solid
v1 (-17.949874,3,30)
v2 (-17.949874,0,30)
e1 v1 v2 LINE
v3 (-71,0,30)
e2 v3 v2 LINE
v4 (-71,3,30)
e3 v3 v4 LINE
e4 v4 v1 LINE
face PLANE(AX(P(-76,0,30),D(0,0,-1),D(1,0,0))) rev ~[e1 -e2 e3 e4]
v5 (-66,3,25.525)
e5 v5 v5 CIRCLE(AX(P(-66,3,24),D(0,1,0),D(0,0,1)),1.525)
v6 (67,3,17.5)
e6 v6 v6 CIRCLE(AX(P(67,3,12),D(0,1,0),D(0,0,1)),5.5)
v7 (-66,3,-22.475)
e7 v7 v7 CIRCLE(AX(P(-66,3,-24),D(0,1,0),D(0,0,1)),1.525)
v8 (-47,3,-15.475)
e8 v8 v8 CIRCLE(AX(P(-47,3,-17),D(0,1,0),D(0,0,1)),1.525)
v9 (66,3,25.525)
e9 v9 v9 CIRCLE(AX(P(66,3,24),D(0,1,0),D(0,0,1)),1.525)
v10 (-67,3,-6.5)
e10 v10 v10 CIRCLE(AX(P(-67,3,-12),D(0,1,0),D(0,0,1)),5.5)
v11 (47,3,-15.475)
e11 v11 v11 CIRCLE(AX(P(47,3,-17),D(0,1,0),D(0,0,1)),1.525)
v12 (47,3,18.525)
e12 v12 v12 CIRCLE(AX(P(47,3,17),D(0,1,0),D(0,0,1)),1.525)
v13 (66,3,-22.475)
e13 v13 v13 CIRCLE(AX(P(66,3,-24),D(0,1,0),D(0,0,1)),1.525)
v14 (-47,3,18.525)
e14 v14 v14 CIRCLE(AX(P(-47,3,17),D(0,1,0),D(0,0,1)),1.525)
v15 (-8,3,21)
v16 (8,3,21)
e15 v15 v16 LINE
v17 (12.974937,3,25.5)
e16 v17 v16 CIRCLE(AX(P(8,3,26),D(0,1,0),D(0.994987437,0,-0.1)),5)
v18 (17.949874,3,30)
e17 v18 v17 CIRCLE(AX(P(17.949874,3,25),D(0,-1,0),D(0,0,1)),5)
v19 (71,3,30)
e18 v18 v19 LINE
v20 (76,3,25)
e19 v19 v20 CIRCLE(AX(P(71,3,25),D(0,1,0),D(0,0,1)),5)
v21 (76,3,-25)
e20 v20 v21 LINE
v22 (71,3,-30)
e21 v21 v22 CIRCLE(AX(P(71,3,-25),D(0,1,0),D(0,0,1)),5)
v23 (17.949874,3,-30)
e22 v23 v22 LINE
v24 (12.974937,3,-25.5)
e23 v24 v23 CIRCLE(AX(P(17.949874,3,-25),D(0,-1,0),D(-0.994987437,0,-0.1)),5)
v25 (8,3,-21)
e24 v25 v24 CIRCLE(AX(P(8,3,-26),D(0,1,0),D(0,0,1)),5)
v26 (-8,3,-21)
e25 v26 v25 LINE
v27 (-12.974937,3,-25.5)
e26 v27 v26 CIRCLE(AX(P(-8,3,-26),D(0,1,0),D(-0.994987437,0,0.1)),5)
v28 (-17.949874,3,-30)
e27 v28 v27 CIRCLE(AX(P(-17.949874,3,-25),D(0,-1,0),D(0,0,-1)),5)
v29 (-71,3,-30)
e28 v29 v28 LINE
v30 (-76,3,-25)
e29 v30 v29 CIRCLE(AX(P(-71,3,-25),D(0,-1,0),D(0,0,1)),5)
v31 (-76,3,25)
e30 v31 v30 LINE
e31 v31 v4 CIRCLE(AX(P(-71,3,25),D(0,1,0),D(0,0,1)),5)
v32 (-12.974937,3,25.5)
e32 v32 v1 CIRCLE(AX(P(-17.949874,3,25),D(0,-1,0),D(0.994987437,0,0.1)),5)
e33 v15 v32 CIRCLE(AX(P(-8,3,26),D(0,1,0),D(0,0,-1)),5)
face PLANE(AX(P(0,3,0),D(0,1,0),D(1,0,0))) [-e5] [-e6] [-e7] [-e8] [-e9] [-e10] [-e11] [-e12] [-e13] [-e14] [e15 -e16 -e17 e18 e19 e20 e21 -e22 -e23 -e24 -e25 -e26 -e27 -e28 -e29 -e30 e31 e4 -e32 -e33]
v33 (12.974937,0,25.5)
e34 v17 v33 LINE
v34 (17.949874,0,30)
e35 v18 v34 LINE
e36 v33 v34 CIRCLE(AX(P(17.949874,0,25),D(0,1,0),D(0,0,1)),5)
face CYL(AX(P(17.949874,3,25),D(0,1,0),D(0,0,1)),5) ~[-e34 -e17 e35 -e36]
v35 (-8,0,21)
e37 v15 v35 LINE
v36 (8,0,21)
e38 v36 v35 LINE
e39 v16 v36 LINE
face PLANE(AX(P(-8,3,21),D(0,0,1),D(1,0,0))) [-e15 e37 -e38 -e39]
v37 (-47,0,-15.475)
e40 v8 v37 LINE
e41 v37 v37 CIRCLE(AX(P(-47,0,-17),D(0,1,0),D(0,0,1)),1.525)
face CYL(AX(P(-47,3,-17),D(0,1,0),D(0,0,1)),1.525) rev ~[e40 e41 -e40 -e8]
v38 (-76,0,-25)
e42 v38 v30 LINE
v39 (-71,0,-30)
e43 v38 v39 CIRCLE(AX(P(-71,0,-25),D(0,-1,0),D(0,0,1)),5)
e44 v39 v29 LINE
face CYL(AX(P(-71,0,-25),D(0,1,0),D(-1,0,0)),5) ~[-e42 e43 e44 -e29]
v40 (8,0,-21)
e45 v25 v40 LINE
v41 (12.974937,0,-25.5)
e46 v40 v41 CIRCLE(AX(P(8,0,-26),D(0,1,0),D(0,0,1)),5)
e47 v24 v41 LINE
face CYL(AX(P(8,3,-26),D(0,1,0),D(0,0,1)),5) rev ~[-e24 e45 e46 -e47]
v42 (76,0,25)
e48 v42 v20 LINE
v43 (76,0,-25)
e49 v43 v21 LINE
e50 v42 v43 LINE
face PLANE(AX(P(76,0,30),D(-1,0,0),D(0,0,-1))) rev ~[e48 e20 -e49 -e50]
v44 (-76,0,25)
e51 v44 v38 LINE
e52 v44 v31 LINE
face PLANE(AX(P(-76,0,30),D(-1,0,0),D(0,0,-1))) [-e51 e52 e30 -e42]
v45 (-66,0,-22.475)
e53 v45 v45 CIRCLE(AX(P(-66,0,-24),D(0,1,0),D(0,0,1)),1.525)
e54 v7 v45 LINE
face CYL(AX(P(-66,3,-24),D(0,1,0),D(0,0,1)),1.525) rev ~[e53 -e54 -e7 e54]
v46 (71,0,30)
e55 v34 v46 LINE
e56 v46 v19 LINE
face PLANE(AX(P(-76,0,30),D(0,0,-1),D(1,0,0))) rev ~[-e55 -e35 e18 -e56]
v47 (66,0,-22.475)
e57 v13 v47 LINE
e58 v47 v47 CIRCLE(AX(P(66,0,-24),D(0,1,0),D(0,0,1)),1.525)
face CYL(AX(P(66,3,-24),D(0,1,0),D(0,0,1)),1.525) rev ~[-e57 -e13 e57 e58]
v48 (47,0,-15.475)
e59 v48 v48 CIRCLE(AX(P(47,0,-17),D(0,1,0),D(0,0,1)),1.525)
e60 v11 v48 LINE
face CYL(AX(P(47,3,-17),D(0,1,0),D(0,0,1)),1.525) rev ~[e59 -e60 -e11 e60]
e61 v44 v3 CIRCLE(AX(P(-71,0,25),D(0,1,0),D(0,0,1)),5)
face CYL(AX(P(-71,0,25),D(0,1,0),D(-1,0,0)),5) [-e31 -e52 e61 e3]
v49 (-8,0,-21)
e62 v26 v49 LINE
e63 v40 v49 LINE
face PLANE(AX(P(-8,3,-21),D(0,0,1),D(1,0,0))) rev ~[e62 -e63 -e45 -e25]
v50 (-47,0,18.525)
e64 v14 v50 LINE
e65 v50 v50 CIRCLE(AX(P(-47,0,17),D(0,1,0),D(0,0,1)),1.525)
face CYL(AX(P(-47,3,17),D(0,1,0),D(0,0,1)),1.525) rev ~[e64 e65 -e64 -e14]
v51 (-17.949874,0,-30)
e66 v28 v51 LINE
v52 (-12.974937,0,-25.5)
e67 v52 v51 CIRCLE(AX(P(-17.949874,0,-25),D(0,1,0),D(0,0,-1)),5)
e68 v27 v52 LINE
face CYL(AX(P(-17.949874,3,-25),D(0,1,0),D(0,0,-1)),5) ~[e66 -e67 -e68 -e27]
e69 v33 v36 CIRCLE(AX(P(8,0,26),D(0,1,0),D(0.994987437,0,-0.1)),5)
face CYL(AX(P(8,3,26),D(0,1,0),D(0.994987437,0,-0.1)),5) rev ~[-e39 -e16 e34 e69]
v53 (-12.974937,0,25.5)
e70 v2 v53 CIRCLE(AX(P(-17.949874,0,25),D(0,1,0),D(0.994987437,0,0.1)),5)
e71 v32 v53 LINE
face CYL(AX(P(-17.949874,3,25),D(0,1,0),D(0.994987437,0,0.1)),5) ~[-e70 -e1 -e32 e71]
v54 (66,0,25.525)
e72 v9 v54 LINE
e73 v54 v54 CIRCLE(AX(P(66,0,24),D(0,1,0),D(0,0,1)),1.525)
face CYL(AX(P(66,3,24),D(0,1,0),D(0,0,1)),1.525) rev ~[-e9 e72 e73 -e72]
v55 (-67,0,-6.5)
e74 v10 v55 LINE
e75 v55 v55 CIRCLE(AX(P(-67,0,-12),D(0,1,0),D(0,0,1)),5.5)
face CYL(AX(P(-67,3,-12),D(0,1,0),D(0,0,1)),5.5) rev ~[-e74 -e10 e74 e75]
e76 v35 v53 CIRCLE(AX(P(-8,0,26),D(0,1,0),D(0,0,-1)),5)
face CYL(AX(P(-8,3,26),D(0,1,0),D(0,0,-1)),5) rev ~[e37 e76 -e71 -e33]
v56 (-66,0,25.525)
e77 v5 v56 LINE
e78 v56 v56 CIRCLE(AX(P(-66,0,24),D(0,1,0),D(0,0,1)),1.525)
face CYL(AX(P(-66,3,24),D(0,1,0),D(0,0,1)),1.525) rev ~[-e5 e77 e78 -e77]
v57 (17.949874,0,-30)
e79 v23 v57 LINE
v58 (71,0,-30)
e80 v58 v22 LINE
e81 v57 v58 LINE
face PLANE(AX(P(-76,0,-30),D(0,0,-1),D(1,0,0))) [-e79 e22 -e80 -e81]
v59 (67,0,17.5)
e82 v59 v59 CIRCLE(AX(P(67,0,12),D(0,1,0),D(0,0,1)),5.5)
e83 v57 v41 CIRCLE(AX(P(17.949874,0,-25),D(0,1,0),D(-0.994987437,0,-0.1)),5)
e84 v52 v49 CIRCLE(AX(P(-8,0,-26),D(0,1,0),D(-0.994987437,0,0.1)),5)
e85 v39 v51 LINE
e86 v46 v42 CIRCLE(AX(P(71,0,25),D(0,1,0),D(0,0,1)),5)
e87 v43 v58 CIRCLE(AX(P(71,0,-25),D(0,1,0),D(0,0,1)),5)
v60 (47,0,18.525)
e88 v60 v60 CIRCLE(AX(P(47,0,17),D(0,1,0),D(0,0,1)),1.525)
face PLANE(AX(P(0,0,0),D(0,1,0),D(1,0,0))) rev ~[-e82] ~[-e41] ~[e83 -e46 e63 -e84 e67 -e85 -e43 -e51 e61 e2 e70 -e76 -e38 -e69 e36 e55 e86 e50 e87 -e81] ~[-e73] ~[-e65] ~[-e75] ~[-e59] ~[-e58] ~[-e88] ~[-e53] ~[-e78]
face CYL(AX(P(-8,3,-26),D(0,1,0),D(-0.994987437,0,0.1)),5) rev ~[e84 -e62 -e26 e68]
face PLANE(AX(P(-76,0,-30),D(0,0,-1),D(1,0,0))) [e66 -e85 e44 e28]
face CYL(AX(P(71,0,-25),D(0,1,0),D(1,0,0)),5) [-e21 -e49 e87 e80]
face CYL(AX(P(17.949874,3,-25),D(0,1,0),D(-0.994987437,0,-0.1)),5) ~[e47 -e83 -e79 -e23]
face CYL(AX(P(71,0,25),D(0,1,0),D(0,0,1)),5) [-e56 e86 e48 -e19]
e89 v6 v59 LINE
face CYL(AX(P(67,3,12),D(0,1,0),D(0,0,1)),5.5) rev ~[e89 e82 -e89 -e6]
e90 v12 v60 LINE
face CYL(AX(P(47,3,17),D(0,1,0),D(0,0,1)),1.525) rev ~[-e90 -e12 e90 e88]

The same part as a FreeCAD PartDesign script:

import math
import FreeCAD as App
import Part
import Sketcher

V = App.Vector


def edges_at(feature, points):
    """Names of the edges that pass closest to the given points."""
    edges = feature.Shape.Edges
    near = lambda p: min(range(len(edges)), key=lambda i: edges[i].distToShape(Part.Vertex(*p))[0])
    return sorted({f"Edge{near(p) + 1}" for p in points})

doc = App.newDocument("Part")
params = doc.addObject("Spreadsheet::Sheet", "Params")
for row, (alias, value) in enumerate([
    ("sketch1_width", "152 mm"),
    ("sketch1_height", "60 mm"),
    ("pad1_length", "3 mm"),
    ("fillet_radius", "5 mm"),
    ("sketch2_diameter", "3.05 mm"),
    ("sketch3_diameter", "3.05 mm"),
    ("sketch4_diameter", "3.05 mm"),
    ("sketch5_diameter", "3.05 mm"),
    ("sketch6_radius", "5 mm"),
    ("sketch6_height", "9 mm"),
    ("sketch7_width", "16 mm"),
    ("sketch7_height", "9 mm"),
    ("sketch8_radius", "5 mm"),
    ("sketch8_height", "9 mm"),
    ("sketch9_radius", "5 mm"),
    ("sketch9_height", "9 mm"),
    ("sketch10_width", "16 mm"),
    ("sketch10_height", "9 mm"),
    ("sketch11_radius", "5 mm"),
    ("sketch11_height", "9 mm"),
    ("sketch12_diameter", "3.05 mm"),
    ("sketch13_diameter", "3.05 mm"),
    ("sketch14_diameter", "3.05 mm"),
    ("sketch15_diameter", "3.05 mm"),
    ("sketch16_diameter", "11 mm"),
    ("sketch17_diameter", "11 mm"),
], start=1):
    params.set(f"A{row}", alias)
    params.set(f"B{row}", "=" + value)
    params.setAlias(f"B{row}", alias)

body = doc.addObject("PartDesign::Body", "Body")

sketch1 = doc.addObject("Sketcher::SketchObject", "Sketch")
body.addObject(sketch1)
sketch1.AttachmentSupport = (doc.XZ_Plane, [""])
sketch1.MapMode = "FlatFace"
sketch1.addGeometry([
    Part.LineSegment(V(-76, -30, 0), V(-76, 30, 0)),
    Part.LineSegment(V(-76, 30, 0), V(76, 30, 0)),
    Part.LineSegment(V(76, 30, 0), V(76, -30, 0)),
    Part.LineSegment(V(76, -30, 0), V(-76, -30, 0)),
], False)
sketch1.addConstraint([
    Sketcher.Constraint("Coincident", 0, 2, 1, 1),
    Sketcher.Constraint("Coincident", 1, 2, 2, 1),
    Sketcher.Constraint("Coincident", 2, 2, 3, 1),
    Sketcher.Constraint("Coincident", 3, 2, 0, 1),
    Sketcher.Constraint("Vertical", 0),
    Sketcher.Constraint("Horizontal", 1),
    Sketcher.Constraint("Vertical", 2),
    Sketcher.Constraint("Horizontal", 3),
    Sketcher.Constraint("Symmetric", 0, 2, 2, 2, -1, 1),
    Sketcher.Constraint("DistanceX", 1, 1, 1, 2, 152.0),
    Sketcher.Constraint("DistanceY", 0, 1, 0, 2, 60.0),
])
sketch1.setExpression("Constraints[9]", "Params.sketch1_width")
sketch1.setExpression("Constraints[10]", "Params.sketch1_height")
pad1 = doc.addObject("PartDesign::Pad", "Pad")
body.addObject(pad1)
pad1.Profile = sketch1
pad1.setExpression("Length", "Params.pad1_length")
pad1.Reversed = True
doc.recompute()

fillet = doc.addObject("PartDesign::Fillet", "Fillet")
body.addObject(fillet)
fillet.Base = (pad1, edges_at(pad1, [
    (76, 1.5, 30),
    (-76, 1.5, 30),
    (-76, 1.5, -30),
    (76, 1.5, -30),
]))
fillet.setExpression("Radius", "Params.fillet_radius")

sketch2 = doc.addObject("Sketcher::SketchObject", "Sketch001")
body.addObject(sketch2)
sketch2.AttachmentSupport = (doc.XZ_Plane, [""])
sketch2.MapMode = "FlatFace"
sketch2.AttachmentOffset = App.Placement(V(0, 0, -3), App.Rotation())
sketch2.addGeometry(Part.Circle(V(-66, 24, 0), V(0, 0, 1), 1.5), False)
sketch2.addConstraint([
    Sketcher.Constraint("Diameter", 0, 3.05),
    Sketcher.Constraint("DistanceX", 0, 3, -1, 1, 66.0),
    Sketcher.Constraint("DistanceY", -1, 1, 0, 3, 24.0),
])
sketch2.setExpression("Constraints[0]", "Params.sketch2_diameter")
pocket1 = doc.addObject("PartDesign::Pocket", "Pocket")
body.addObject(pocket1)
pocket1.Profile = sketch2
pocket1.Type = "UpToFirst"
pocket1.Reversed = True

sketch3 = doc.addObject("Sketcher::SketchObject", "Sketch002")
body.addObject(sketch3)
sketch3.AttachmentSupport = (doc.XZ_Plane, [""])
sketch3.MapMode = "FlatFace"
sketch3.AttachmentOffset = App.Placement(V(0, 0, -3), App.Rotation())
sketch3.addGeometry(Part.Circle(V(66, 24, 0), V(0, 0, 1), 1.5), False)
sketch3.addConstraint([
    Sketcher.Constraint("Diameter", 0, 3.05),
    Sketcher.Constraint("DistanceX", -1, 1, 0, 3, 66.0),
    Sketcher.Constraint("DistanceY", -1, 1, 0, 3, 24.0),
])
sketch3.setExpression("Constraints[0]", "Params.sketch3_diameter")
pocket2 = doc.addObject("PartDesign::Pocket", "Pocket001")
body.addObject(pocket2)
pocket2.Profile = sketch3
pocket2.Type = "UpToFirst"
pocket2.Reversed = True

sketch4 = doc.addObject("Sketcher::SketchObject", "Sketch003")
body.addObject(sketch4)
sketch4.AttachmentSupport = (doc.XZ_Plane, [""])
sketch4.MapMode = "FlatFace"
sketch4.AttachmentOffset = App.Placement(V(0, 0, -3), App.Rotation())
sketch4.addGeometry(Part.Circle(V(66, -24, 0), V(0, 0, 1), 1.5), False)
sketch4.addConstraint([
    Sketcher.Constraint("Diameter", 0, 3.05),
    Sketcher.Constraint("DistanceX", -1, 1, 0, 3, 66.0),
    Sketcher.Constraint("DistanceY", 0, 3, -1, 1, 24.0),
])
sketch4.setExpression("Constraints[0]", "Params.sketch4_diameter")
pocket3 = doc.addObject("PartDesign::Pocket", "Pocket002")
body.addObject(pocket3)
pocket3.Profile = sketch4
pocket3.Type = "UpToFirst"
pocket3.Reversed = True

sketch5 = doc.addObject("Sketcher::SketchObject", "Sketch004")
body.addObject(sketch5)
sketch5.AttachmentSupport = (doc.XZ_Plane, [""])
sketch5.MapMode = "FlatFace"
sketch5.AttachmentOffset = App.Placement(V(0, 0, -3), App.Rotation())
sketch5.addGeometry(Part.Circle(V(-66, -24, 0), V(0, 0, 1), 1.5), False)
sketch5.addConstraint([
    Sketcher.Constraint("Diameter", 0, 3.05),
    Sketcher.Constraint("DistanceX", 0, 3, -1, 1, 66.0),
    Sketcher.Constraint("DistanceY", 0, 3, -1, 1, 24.0),
])
sketch5.setExpression("Constraints[0]", "Params.sketch5_diameter")
pocket4 = doc.addObject("PartDesign::Pocket", "Pocket003")
body.addObject(pocket4)
pocket4.Profile = sketch5
pocket4.Type = "UpToFirst"
pocket4.Reversed = True

sketch6 = doc.addObject("Sketcher::SketchObject", "Sketch005")
body.addObject(sketch6)
sketch6.AttachmentSupport = (doc.XZ_Plane, [""])
sketch6.MapMode = "FlatFace"
sketch6.AttachmentOffset = App.Placement(V(0, 0, -3), App.Rotation())
sketch6.addGeometry([
    Part.LineSegment(V(-8, 30, 0), V(-8, 21, 0)),
    Part.ArcOfCircle(Part.Circle(V(-8, 26, 0), V(0, 0, 1), 5), math.radians(-174), math.radians(-90)),
    Part.ArcOfCircle(Part.Circle(V(-17.9, 25, 0), V(0, 0, 1), 5), math.radians(6), math.radians(90)),
    Part.LineSegment(V(-17.9, 30, 0), V(-8, 30, 0)),
], False)
sketch6.addConstraint([
    Sketcher.Constraint("Coincident", 0, 2, 1, 2),
    Sketcher.Constraint("Tangent", 1, 1, 2, 1),
    Sketcher.Constraint("Tangent", 2, 2, 3, 1),
    Sketcher.Constraint("Coincident", 3, 2, 0, 1),
    Sketcher.Constraint("Vertical", 0),
    Sketcher.Constraint("Horizontal", 3),
    Sketcher.Constraint("Equal", 1, 2),
    Sketcher.Constraint("Vertical", 1, 3, 0, 2),
    Sketcher.Constraint("Radius", 1, 5.0),
    Sketcher.Constraint("DistanceY", 0, 2, 0, 1, 9.0),
    Sketcher.Constraint("DistanceX", 1, 3, -1, 1, 8.0),
    Sketcher.Constraint("DistanceY", -1, 1, 1, 3, 26.0),
])
sketch6.setExpression("Constraints[8]", "Params.sketch6_radius")
sketch6.setExpression("Constraints[9]", "Params.sketch6_height")
pocket5 = doc.addObject("PartDesign::Pocket", "Pocket004")
body.addObject(pocket5)
pocket5.Profile = sketch6
pocket5.Type = "UpToFirst"
pocket5.Reversed = True

sketch7 = doc.addObject("Sketcher::SketchObject", "Sketch006")
body.addObject(sketch7)
sketch7.AttachmentSupport = (doc.XZ_Plane, [""])
sketch7.MapMode = "FlatFace"
sketch7.AttachmentOffset = App.Placement(V(0, 0, -3), App.Rotation())
sketch7.addGeometry([
    Part.LineSegment(V(-8, 21, 0), V(-8, 30, 0)),
    Part.LineSegment(V(-8, 30, 0), V(8, 30, 0)),
    Part.LineSegment(V(8, 30, 0), V(8, 21, 0)),
    Part.LineSegment(V(8, 21, 0), V(-8, 21, 0)),
], False)
sketch7.addConstraint([
    Sketcher.Constraint("Coincident", 0, 2, 1, 1),
    Sketcher.Constraint("Coincident", 1, 2, 2, 1),
    Sketcher.Constraint("Coincident", 2, 2, 3, 1),
    Sketcher.Constraint("Coincident", 3, 2, 0, 1),
    Sketcher.Constraint("Vertical", 0),
    Sketcher.Constraint("Horizontal", 1),
    Sketcher.Constraint("Vertical", 2),
    Sketcher.Constraint("Horizontal", 3),
    Sketcher.Constraint("DistanceX", 1, 1, 1, 2, 16.0),
    Sketcher.Constraint("DistanceY", 0, 1, 0, 2, 9.0),
    Sketcher.Constraint("DistanceX", 0, 2, -1, 1, 8.0),
    Sketcher.Constraint("DistanceY", -1, 1, 0, 2, 30.0),
])
sketch7.setExpression("Constraints[8]", "Params.sketch7_width")
sketch7.setExpression("Constraints[9]", "Params.sketch7_height")
pocket6 = doc.addObject("PartDesign::Pocket", "Pocket005")
body.addObject(pocket6)
pocket6.Profile = sketch7
pocket6.Type = "UpToFirst"
pocket6.Reversed = True

sketch8 = doc.addObject("Sketcher::SketchObject", "Sketch007")
body.addObject(sketch8)
sketch8.AttachmentSupport = (doc.XZ_Plane, [""])
sketch8.MapMode = "FlatFace"
sketch8.AttachmentOffset = App.Placement(V(0, 0, -3), App.Rotation())
sketch8.addGeometry([
    Part.ArcOfCircle(Part.Circle(V(8, 26, 0), V(0, 0, 1), 5), math.radians(-90), math.radians(-6)),
    Part.LineSegment(V(8, 21, 0), V(8, 30, 0)),
    Part.LineSegment(V(8, 30, 0), V(17.9, 30, 0)),
    Part.ArcOfCircle(Part.Circle(V(17.9, 25, 0), V(0, 0, 1), 5), math.radians(90), math.radians(174)),
], False)
sketch8.addConstraint([
    Sketcher.Constraint("Coincident", 0, 1, 1, 1),
    Sketcher.Constraint("Coincident", 1, 2, 2, 1),
    Sketcher.Constraint("Tangent", 2, 2, 3, 1),
    Sketcher.Constraint("Tangent", 3, 2, 0, 2),
    Sketcher.Constraint("Vertical", 1),
    Sketcher.Constraint("Horizontal", 2),
    Sketcher.Constraint("Equal", 0, 3),
    Sketcher.Constraint("Radius", 0, 5.0),
    Sketcher.Constraint("DistanceY", 1, 1, 1, 2, 9.0),
    Sketcher.Constraint("DistanceX", -1, 1, 0, 3, 8.0),
    Sketcher.Constraint("DistanceY", -1, 1, 0, 3, 26.0),
    Sketcher.Constraint("DistanceX", -1, 1, 0, 1, 8.0),
])
sketch8.setExpression("Constraints[7]", "Params.sketch8_radius")
sketch8.setExpression("Constraints[8]", "Params.sketch8_height")
pocket7 = doc.addObject("PartDesign::Pocket", "Pocket006")
body.addObject(pocket7)
pocket7.Profile = sketch8
pocket7.Type = "UpToFirst"
pocket7.Reversed = True

sketch9 = doc.addObject("Sketcher::SketchObject", "Sketch008")
body.addObject(sketch9)
sketch9.AttachmentSupport = (doc.XZ_Plane, [""])
sketch9.MapMode = "FlatFace"
sketch9.AttachmentOffset = App.Placement(V(0, 0, -3), App.Rotation())
sketch9.addGeometry([
    Part.ArcOfCircle(Part.Circle(V(-8, -26, 0), V(0, 0, 1), 5), math.radians(90), math.radians(174)),
    Part.LineSegment(V(-8, -21, 0), V(-8, -30, 0)),
    Part.LineSegment(V(-8, -30, 0), V(-17.9, -30, 0)),
    Part.ArcOfCircle(Part.Circle(V(-17.9, -25, 0), V(0, 0, 1), 5), math.radians(-90), math.radians(-6)),
], False)
sketch9.addConstraint([
    Sketcher.Constraint("Coincident", 0, 1, 1, 1),
    Sketcher.Constraint("Coincident", 1, 2, 2, 1),
    Sketcher.Constraint("Tangent", 2, 2, 3, 1),
    Sketcher.Constraint("Tangent", 3, 2, 0, 2),
    Sketcher.Constraint("Vertical", 1),
    Sketcher.Constraint("Horizontal", 2),
    Sketcher.Constraint("Equal", 0, 3),
    Sketcher.Constraint("Radius", 0, 5.0),
    Sketcher.Constraint("DistanceY", 1, 2, 1, 1, 9.0),
    Sketcher.Constraint("DistanceX", 0, 3, -1, 1, 8.0),
    Sketcher.Constraint("DistanceY", 0, 3, -1, 1, 26.0),
    Sketcher.Constraint("DistanceX", 0, 1, -1, 1, 8.0),
])
sketch9.setExpression("Constraints[7]", "Params.sketch9_radius")
sketch9.setExpression("Constraints[8]", "Params.sketch9_height")
pocket8 = doc.addObject("PartDesign::Pocket", "Pocket007")
body.addObject(pocket8)
pocket8.Profile = sketch9
pocket8.Type = "UpToFirst"
pocket8.Reversed = True

sketch10 = doc.addObject("Sketcher::SketchObject", "Sketch009")
body.addObject(sketch10)
sketch10.AttachmentSupport = (doc.XZ_Plane, [""])
sketch10.MapMode = "FlatFace"
sketch10.AttachmentOffset = App.Placement(V(0, 0, -3), App.Rotation())
sketch10.addGeometry([
    Part.LineSegment(V(-8, -30, 0), V(-8, -21, 0)),
    Part.LineSegment(V(-8, -21, 0), V(8, -21, 0)),
    Part.LineSegment(V(8, -21, 0), V(8, -30, 0)),
    Part.LineSegment(V(8, -30, 0), V(-8, -30, 0)),
], False)
sketch10.addConstraint([
    Sketcher.Constraint("Coincident", 0, 2, 1, 1),
    Sketcher.Constraint("Coincident", 1, 2, 2, 1),
    Sketcher.Constraint("Coincident", 2, 2, 3, 1),
    Sketcher.Constraint("Coincident", 3, 2, 0, 1),
    Sketcher.Constraint("Vertical", 0),
    Sketcher.Constraint("Horizontal", 1),
    Sketcher.Constraint("Vertical", 2),
    Sketcher.Constraint("Horizontal", 3),
    Sketcher.Constraint("DistanceX", 1, 1, 1, 2, 16.0),
    Sketcher.Constraint("DistanceY", 0, 1, 0, 2, 9.0),
    Sketcher.Constraint("DistanceX", 0, 2, -1, 1, 8.0),
    Sketcher.Constraint("DistanceY", 0, 2, -1, 1, 21.0),
])
sketch10.setExpression("Constraints[8]", "Params.sketch10_width")
sketch10.setExpression("Constraints[9]", "Params.sketch10_height")
pocket9 = doc.addObject("PartDesign::Pocket", "Pocket008")
body.addObject(pocket9)
pocket9.Profile = sketch10
pocket9.Type = "UpToFirst"
pocket9.Reversed = True

sketch11 = doc.addObject("Sketcher::SketchObject", "Sketch010")
body.addObject(sketch11)
sketch11.AttachmentSupport = (doc.XZ_Plane, [""])
sketch11.MapMode = "FlatFace"
sketch11.AttachmentOffset = App.Placement(V(0, 0, -3), App.Rotation())
sketch11.addGeometry([
    Part.LineSegment(V(8, -30, 0), V(8, -21, 0)),
    Part.ArcOfCircle(Part.Circle(V(8, -26, 0), V(0, 0, 1), 5), math.radians(6), math.radians(90)),
    Part.ArcOfCircle(Part.Circle(V(17.9, -25, 0), V(0, 0, 1), 5), math.radians(-174), math.radians(-90)),
    Part.LineSegment(V(17.9, -30, 0), V(8, -30, 0)),
], False)
sketch11.addConstraint([
    Sketcher.Constraint("Coincident", 0, 2, 1, 2),
    Sketcher.Constraint("Tangent", 1, 1, 2, 1),
    Sketcher.Constraint("Tangent", 2, 2, 3, 1),
    Sketcher.Constraint("Coincident", 3, 2, 0, 1),
    Sketcher.Constraint("Vertical", 0),
    Sketcher.Constraint("Horizontal", 3),
    Sketcher.Constraint("Equal", 1, 2),
    Sketcher.Constraint("Vertical", 1, 3, 0, 2),
    Sketcher.Constraint("Radius", 1, 5.0),
    Sketcher.Constraint("DistanceY", 0, 1, 0, 2, 9.0),
    Sketcher.Constraint("DistanceX", -1, 1, 1, 3, 8.0),
    Sketcher.Constraint("DistanceY", 1, 3, -1, 1, 26.0),
])
sketch11.setExpression("Constraints[8]", "Params.sketch11_radius")
sketch11.setExpression("Constraints[9]", "Params.sketch11_height")
pocket10 = doc.addObject("PartDesign::Pocket", "Pocket009")
body.addObject(pocket10)
pocket10.Profile = sketch11
pocket10.Type = "UpToFirst"
pocket10.Reversed = True

sketch12 = doc.addObject("Sketcher::SketchObject", "Sketch011")
body.addObject(sketch12)
sketch12.AttachmentSupport = (doc.XZ_Plane, [""])
sketch12.MapMode = "FlatFace"
sketch12.AttachmentOffset = App.Placement(V(0, 0, -3), App.Rotation())
sketch12.addGeometry(Part.Circle(V(-47, 17, 0), V(0, 0, 1), 1.5), False)
sketch12.addConstraint([
    Sketcher.Constraint("Diameter", 0, 3.05),
    Sketcher.Constraint("DistanceX", 0, 3, -1, 1, 47.0),
    Sketcher.Constraint("DistanceY", -1, 1, 0, 3, 17.0),
])
sketch12.setExpression("Constraints[0]", "Params.sketch12_diameter")
pocket11 = doc.addObject("PartDesign::Pocket", "Pocket010")
body.addObject(pocket11)
pocket11.Profile = sketch12
pocket11.Type = "UpToFirst"
pocket11.Reversed = True

sketch13 = doc.addObject("Sketcher::SketchObject", "Sketch012")
body.addObject(sketch13)
sketch13.AttachmentSupport = (doc.XZ_Plane, [""])
sketch13.MapMode = "FlatFace"
sketch13.AttachmentOffset = App.Placement(V(0, 0, -3), App.Rotation())
sketch13.addGeometry(Part.Circle(V(-47, -17, 0), V(0, 0, 1), 1.5), False)
sketch13.addConstraint([
    Sketcher.Constraint("Diameter", 0, 3.05),
    Sketcher.Constraint("DistanceX", 0, 3, -1, 1, 47.0),
    Sketcher.Constraint("DistanceY", 0, 3, -1, 1, 17.0),
])
sketch13.setExpression("Constraints[0]", "Params.sketch13_diameter")
pocket12 = doc.addObject("PartDesign::Pocket", "Pocket011")
body.addObject(pocket12)
pocket12.Profile = sketch13
pocket12.Type = "UpToFirst"
pocket12.Reversed = True

sketch14 = doc.addObject("Sketcher::SketchObject", "Sketch013")
body.addObject(sketch14)
sketch14.AttachmentSupport = (doc.XZ_Plane, [""])
sketch14.MapMode = "FlatFace"
sketch14.AttachmentOffset = App.Placement(V(0, 0, -3), App.Rotation())
sketch14.addGeometry(Part.Circle(V(47, 17, 0), V(0, 0, 1), 1.5), False)
sketch14.addConstraint([
    Sketcher.Constraint("Diameter", 0, 3.05),
    Sketcher.Constraint("DistanceX", -1, 1, 0, 3, 47.0),
    Sketcher.Constraint("DistanceY", -1, 1, 0, 3, 17.0),
])
sketch14.setExpression("Constraints[0]", "Params.sketch14_diameter")
pocket13 = doc.addObject("PartDesign::Pocket", "Pocket012")
body.addObject(pocket13)
pocket13.Profile = sketch14
pocket13.Type = "UpToFirst"
pocket13.Reversed = True

sketch15 = doc.addObject("Sketcher::SketchObject", "Sketch014")
body.addObject(sketch15)
sketch15.AttachmentSupport = (doc.XZ_Plane, [""])
sketch15.MapMode = "FlatFace"
sketch15.AttachmentOffset = App.Placement(V(0, 0, -3), App.Rotation())
sketch15.addGeometry(Part.Circle(V(47, -17, 0), V(0, 0, 1), 1.5), False)
sketch15.addConstraint([
    Sketcher.Constraint("Diameter", 0, 3.05),
    Sketcher.Constraint("DistanceX", -1, 1, 0, 3, 47.0),
    Sketcher.Constraint("DistanceY", 0, 3, -1, 1, 17.0),
])
sketch15.setExpression("Constraints[0]", "Params.sketch15_diameter")
pocket14 = doc.addObject("PartDesign::Pocket", "Pocket013")
body.addObject(pocket14)
pocket14.Profile = sketch15
pocket14.Type = "UpToFirst"
pocket14.Reversed = True

sketch16 = doc.addObject("Sketcher::SketchObject", "Sketch015")
body.addObject(sketch16)
sketch16.AttachmentSupport = (doc.XZ_Plane, [""])
sketch16.MapMode = "FlatFace"
sketch16.AttachmentOffset = App.Placement(V(0, 0, -3), App.Rotation())
sketch16.addGeometry(Part.Circle(V(-67, -12, 0), V(0, 0, 1), 6), False)
sketch16.addConstraint([
    Sketcher.Constraint("Diameter", 0, 11.0),
    Sketcher.Constraint("DistanceX", 0, 3, -1, 1, 67.0),
    Sketcher.Constraint("DistanceY", 0, 3, -1, 1, 12.0),
])
sketch16.setExpression("Constraints[0]", "Params.sketch16_diameter")
pocket15 = doc.addObject("PartDesign::Pocket", "Pocket014")
body.addObject(pocket15)
pocket15.Profile = sketch16
pocket15.Type = "UpToFirst"
pocket15.Reversed = True

sketch17 = doc.addObject("Sketcher::SketchObject", "Sketch016")
body.addObject(sketch17)
sketch17.AttachmentSupport = (doc.XZ_Plane, [""])
sketch17.MapMode = "FlatFace"
sketch17.AttachmentOffset = App.Placement(V(0, 0, -3), App.Rotation())
sketch17.addGeometry(Part.Circle(V(67, 12, 0), V(0, 0, 1), 6), False)
sketch17.addConstraint([
    Sketcher.Constraint("Diameter", 0, 11.0),
    Sketcher.Constraint("DistanceX", -1, 1, 0, 3, 67.0),
    Sketcher.Constraint("DistanceY", -1, 1, 0, 3, 12.0),
])
sketch17.setExpression("Constraints[0]", "Params.sketch17_diameter")
pocket16 = doc.addObject("PartDesign::Pocket", "Pocket015")
body.addObject(pocket16)
pocket16.Profile = sketch17
pocket16.Type = "UpToFirst"
pocket16.Reversed = True

doc.recompute()
